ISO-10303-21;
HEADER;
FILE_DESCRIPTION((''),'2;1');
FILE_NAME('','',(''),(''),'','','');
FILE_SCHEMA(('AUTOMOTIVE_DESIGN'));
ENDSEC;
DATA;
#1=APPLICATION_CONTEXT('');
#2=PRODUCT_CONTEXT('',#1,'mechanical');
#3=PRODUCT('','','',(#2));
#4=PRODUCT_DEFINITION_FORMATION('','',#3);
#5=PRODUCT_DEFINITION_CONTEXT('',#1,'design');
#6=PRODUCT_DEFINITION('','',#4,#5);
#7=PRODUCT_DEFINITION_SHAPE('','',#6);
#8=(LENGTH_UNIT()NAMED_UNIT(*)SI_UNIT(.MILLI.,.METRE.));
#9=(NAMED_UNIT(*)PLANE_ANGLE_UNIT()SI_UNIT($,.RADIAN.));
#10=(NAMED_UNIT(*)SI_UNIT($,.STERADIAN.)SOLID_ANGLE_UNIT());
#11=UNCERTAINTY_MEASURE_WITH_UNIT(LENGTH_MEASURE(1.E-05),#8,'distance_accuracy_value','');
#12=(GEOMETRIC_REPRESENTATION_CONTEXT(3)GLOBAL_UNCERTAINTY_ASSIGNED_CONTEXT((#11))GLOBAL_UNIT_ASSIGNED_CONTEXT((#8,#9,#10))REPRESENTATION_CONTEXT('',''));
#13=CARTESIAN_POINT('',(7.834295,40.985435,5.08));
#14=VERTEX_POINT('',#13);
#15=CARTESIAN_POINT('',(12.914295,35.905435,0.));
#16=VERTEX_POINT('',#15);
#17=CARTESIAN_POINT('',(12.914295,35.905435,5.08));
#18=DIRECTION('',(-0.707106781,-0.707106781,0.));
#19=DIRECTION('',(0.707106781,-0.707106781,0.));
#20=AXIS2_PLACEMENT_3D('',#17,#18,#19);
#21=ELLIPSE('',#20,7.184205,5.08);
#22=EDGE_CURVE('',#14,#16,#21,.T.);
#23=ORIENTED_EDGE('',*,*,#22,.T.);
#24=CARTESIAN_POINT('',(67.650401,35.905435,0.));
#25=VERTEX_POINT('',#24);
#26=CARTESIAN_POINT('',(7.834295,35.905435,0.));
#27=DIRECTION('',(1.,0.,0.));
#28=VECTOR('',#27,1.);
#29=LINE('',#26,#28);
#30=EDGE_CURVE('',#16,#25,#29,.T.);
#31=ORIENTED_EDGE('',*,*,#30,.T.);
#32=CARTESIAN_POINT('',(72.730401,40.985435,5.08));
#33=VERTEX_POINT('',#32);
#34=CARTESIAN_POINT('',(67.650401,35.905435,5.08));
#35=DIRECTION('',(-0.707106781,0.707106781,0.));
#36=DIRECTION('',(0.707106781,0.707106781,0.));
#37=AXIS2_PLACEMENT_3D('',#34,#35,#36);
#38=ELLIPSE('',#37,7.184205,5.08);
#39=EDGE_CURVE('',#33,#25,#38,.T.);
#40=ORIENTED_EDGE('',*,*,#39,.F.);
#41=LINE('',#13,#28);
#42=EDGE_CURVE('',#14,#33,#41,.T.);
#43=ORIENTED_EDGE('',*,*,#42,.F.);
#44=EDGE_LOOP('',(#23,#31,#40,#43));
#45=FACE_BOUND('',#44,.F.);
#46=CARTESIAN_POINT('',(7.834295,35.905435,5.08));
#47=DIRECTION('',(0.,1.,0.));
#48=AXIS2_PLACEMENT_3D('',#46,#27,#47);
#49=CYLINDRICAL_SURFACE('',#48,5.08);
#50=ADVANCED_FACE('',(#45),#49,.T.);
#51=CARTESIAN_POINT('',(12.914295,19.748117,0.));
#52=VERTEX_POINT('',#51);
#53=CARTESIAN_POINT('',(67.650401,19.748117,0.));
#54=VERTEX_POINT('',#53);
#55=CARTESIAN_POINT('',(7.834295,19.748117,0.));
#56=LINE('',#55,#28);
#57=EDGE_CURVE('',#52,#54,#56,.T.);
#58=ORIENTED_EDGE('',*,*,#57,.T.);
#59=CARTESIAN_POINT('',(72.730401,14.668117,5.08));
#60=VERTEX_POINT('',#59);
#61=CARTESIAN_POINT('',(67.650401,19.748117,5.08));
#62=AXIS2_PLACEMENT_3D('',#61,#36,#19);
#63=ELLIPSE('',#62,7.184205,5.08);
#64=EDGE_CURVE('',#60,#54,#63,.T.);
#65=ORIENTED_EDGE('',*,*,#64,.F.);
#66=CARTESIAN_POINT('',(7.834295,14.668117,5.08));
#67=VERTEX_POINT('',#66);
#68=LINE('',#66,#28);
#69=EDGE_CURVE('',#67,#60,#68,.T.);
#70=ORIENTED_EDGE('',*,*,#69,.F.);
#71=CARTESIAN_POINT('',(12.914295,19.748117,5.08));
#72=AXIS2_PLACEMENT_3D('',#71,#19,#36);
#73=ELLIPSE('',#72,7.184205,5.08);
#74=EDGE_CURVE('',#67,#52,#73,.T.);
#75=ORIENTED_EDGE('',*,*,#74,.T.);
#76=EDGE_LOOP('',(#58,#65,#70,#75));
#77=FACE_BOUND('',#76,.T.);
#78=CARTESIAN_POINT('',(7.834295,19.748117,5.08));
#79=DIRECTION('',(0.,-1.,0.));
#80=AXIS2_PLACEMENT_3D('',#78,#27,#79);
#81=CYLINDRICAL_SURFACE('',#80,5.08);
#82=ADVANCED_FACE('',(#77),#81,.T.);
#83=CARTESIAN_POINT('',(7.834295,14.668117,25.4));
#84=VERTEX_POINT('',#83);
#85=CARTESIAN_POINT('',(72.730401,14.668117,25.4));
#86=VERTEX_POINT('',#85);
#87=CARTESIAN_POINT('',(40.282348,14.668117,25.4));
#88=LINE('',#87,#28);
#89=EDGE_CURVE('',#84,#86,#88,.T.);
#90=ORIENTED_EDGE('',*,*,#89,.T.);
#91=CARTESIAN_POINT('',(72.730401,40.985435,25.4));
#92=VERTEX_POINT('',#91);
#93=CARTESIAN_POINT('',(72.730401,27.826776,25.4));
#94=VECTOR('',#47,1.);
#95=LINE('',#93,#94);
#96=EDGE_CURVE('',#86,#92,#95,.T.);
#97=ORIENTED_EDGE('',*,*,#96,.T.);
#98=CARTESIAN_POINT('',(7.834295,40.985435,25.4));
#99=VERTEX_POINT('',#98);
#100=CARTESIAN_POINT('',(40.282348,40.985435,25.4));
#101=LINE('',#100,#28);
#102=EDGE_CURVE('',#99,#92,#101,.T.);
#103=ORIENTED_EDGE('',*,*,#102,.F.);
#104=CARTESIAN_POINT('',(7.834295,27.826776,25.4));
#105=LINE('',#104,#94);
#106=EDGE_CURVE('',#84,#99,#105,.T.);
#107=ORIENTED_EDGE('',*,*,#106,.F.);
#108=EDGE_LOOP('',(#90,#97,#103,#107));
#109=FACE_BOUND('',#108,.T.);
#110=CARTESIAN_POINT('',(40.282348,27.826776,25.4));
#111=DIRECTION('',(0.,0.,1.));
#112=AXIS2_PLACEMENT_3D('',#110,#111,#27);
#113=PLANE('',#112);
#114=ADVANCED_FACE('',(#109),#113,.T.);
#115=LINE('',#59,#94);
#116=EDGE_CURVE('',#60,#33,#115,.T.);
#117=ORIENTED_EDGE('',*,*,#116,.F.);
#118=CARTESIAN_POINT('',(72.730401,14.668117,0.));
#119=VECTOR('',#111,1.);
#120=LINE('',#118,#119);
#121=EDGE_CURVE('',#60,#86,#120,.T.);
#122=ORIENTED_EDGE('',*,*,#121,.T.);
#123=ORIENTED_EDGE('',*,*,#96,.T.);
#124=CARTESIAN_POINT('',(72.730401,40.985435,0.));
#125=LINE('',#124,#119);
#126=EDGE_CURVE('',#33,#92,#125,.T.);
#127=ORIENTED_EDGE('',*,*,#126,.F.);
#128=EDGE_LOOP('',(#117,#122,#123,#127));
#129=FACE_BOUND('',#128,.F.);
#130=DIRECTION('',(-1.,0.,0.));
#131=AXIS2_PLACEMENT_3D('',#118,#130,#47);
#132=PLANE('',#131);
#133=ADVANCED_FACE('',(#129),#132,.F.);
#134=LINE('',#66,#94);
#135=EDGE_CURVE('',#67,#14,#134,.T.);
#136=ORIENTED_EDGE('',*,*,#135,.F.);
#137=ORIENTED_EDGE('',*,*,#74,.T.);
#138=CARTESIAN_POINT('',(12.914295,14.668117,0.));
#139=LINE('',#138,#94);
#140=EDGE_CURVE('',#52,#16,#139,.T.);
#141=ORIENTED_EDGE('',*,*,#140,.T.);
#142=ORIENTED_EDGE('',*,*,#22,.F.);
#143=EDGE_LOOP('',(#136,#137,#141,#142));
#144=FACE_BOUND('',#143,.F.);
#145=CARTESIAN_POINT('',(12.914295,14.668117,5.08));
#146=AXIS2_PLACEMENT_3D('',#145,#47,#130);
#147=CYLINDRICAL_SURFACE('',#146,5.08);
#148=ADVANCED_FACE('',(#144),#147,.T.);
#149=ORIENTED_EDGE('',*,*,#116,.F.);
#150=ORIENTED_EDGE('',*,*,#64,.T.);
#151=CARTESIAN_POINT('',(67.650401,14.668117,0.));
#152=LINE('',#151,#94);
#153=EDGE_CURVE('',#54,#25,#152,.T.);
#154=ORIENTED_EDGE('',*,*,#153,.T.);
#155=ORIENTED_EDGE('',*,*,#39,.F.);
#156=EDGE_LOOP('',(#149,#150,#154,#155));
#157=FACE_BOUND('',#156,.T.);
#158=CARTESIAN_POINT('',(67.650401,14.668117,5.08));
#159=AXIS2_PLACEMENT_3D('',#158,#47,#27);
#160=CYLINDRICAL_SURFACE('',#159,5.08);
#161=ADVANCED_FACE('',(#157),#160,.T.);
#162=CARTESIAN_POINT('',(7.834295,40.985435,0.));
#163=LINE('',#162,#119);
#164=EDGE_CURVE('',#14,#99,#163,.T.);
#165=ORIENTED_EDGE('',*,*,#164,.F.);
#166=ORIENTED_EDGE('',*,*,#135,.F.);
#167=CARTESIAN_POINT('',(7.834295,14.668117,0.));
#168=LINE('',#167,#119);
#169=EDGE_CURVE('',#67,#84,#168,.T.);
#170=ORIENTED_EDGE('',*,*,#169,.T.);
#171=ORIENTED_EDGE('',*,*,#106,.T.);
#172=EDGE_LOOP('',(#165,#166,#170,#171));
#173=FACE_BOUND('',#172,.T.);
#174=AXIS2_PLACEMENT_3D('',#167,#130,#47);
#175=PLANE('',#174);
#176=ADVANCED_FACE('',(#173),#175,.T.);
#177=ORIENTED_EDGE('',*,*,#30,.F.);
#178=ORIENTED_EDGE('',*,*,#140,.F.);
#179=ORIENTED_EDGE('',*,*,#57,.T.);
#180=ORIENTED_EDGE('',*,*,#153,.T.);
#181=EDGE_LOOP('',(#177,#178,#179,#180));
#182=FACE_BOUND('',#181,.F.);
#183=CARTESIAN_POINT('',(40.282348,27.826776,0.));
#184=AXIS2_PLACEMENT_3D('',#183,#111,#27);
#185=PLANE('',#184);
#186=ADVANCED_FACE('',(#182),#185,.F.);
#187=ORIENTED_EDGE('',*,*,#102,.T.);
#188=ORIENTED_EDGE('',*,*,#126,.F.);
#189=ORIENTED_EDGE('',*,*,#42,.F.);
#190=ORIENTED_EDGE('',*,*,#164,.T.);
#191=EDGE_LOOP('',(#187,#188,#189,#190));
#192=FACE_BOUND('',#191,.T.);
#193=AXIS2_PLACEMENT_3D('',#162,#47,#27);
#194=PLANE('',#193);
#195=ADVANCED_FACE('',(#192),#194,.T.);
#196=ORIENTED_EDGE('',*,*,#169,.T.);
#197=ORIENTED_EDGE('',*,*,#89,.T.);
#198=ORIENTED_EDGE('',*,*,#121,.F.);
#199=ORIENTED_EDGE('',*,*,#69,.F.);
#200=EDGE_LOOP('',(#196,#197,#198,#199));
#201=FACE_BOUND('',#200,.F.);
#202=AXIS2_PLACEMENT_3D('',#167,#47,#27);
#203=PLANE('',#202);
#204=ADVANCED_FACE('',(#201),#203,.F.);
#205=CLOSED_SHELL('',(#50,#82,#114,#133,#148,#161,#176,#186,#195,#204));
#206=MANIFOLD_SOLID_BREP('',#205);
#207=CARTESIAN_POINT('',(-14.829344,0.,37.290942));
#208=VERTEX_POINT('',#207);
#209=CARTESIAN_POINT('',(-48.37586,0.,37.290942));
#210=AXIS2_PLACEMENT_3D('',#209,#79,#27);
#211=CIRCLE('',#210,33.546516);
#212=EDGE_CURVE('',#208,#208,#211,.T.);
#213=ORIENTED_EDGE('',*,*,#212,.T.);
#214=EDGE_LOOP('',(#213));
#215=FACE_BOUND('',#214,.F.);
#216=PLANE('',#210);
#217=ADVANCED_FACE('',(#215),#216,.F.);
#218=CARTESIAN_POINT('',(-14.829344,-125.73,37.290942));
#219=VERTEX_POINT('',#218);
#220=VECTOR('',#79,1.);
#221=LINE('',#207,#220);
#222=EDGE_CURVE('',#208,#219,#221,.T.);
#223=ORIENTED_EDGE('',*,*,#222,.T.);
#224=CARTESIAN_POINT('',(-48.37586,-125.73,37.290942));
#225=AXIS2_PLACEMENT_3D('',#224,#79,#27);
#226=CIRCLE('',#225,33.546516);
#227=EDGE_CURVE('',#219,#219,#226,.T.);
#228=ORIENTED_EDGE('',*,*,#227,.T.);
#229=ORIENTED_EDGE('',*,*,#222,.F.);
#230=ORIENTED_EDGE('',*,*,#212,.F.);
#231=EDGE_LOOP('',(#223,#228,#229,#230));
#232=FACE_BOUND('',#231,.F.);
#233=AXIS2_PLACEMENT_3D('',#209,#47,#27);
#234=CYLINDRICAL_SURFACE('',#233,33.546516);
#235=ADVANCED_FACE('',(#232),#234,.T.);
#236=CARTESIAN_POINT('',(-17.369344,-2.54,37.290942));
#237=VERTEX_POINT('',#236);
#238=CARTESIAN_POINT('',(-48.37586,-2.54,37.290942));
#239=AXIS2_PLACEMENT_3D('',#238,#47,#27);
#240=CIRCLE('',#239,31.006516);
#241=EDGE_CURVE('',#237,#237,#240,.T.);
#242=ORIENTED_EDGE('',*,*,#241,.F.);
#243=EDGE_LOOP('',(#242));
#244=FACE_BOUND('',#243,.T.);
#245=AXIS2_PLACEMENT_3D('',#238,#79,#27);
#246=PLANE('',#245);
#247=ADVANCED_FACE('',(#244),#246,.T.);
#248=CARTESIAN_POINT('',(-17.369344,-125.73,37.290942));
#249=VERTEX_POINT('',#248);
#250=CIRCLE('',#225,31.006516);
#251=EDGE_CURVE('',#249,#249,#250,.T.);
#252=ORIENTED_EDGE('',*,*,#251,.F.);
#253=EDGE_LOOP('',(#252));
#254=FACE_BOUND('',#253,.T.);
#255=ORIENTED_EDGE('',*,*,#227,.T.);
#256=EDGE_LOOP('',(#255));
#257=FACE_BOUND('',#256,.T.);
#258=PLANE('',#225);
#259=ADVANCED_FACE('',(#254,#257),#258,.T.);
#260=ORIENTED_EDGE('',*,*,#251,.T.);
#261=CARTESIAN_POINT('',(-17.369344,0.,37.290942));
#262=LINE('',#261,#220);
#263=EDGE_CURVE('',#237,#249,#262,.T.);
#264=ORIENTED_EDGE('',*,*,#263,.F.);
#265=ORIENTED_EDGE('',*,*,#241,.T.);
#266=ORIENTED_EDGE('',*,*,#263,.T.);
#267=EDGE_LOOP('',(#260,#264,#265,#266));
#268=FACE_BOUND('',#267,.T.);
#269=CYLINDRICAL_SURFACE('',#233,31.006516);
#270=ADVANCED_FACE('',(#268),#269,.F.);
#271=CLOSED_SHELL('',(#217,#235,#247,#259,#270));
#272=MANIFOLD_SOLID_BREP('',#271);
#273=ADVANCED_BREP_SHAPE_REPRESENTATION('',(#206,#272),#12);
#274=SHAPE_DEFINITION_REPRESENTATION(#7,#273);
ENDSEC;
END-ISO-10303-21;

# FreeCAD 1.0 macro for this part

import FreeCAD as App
import Part
import Sketcher
from FreeCAD import Vector
Q = App.Units.Quantity


def edges_at(feature, points):
    """Names of the edges that pass closest to the given points."""
    edges = feature.Shape.Edges
    near = lambda p: min(range(len(edges)), key=lambda i: edges[i].distToShape(Part.Vertex(*p))[0])
    return sorted({f"Edge{near(p) + 1}" for p in points})


def faces_at(feature, points):
    """Names of the faces that lie closest to the given points."""
    faces = feature.Shape.Faces
    near = lambda p: min(range(len(faces)), key=lambda i: faces[i].distToShape(Part.Vertex(*p))[0])
    return sorted({f"Face{near(p) + 1}" for p in points})


def add_polygon(sketch, points):
    """Adds a closed chain of lines whose ends are joined by coincident constraints."""
    first, n = sketch.GeometryCount, len(points)
    for a, b in zip(points, points[1:] + points[:1]):
        sketch.addGeometry(Part.LineSegment(App.Vector(*a, 0), App.Vector(*b, 0)), False)
    for i in range(n):
        sketch.addConstraint(Sketcher.Constraint("Coincident", first + i, 2, first + (i + 1) % n, 1))

doc = App.newDocument("Part")
body = doc.addObject("PartDesign::Body", "Body")

# Sketch on XZ plane
sketch1 = doc.addObject("Sketcher::SketchObject", "Sketch")
body.addObject(sketch1)
sketch1.AttachmentSupport = (doc.XZ_Plane, [""])
sketch1.MapMode = "FlatFace"
sketch1.addGeometry(Part.Circle(Vector(-48, 37, 0), Vector(0, 0, 1), 34), False)
sketch1.addConstraint(Sketcher.Constraint("Diameter", 0, Q("67.093032 mm")))
sketch1.addConstraint(Sketcher.Constraint("DistanceX", 0, 3, -1, 1, Q("48.37586 mm")))
sketch1.addConstraint(Sketcher.Constraint("DistanceY", -1, 1, 0, 3, Q("37.290942 mm")))
pad1 = doc.addObject("PartDesign::Pad", "Pad")
body.addObject(pad1)
pad1.Profile = sketch1
pad1.Length = Q("4.95 in")
doc.recompute()

thickness = doc.addObject("PartDesign::Thickness", "Thickness")
body.addObject(thickness)
thickness.Base = (pad1, faces_at(pad1, [(-48.376, -125.73, 37.291)]))
thickness.Value = Q("0.1 in")
thickness.Reversed = True
thickness.Join = "Arc"
body2 = doc.addObject("PartDesign::Body", "Body001")

# Sketch on XY plane
sketch2 = doc.addObject("Sketcher::SketchObject", "Sketch001")
body2.addObject(sketch2)
sketch2.AttachmentSupport = (doc.getObject("XY_Plane001"), [""])
sketch2.MapMode = "FlatFace"
add_polygon(sketch2, [(8, 41), (8, 15), (73, 15), (73, 41)])  # lines 0-3
sketch2.addConstraint(Sketcher.Constraint("Vertical", 0))
sketch2.addConstraint(Sketcher.Constraint("Horizontal", 1))
sketch2.addConstraint(Sketcher.Constraint("Vertical", 2))
sketch2.addConstraint(Sketcher.Constraint("Horizontal", 3))
sketch2.addConstraint(Sketcher.Constraint("DistanceY", -1, 1, 2, 2, Q("1.6135998 in")))
sketch2.addConstraint(Sketcher.Constraint("DistanceY", 0, 2, 0, 1, Q("26.317318 mm")))
sketch2.addConstraint(Sketcher.Constraint("DistanceX", -1, 1, 1, 2, Q("72.730401 mm")))
sketch2.addConstraint(Sketcher.Constraint("DistanceX", 1, 1, 1, 2, Q("64.896105 mm")))
pad2 = doc.addObject("PartDesign::Pad", "Pad001")
body2.addObject(pad2)
pad2.Profile = sketch2
pad2.Length = Q("1 in")
doc.recompute()

fillet = doc.addObject("PartDesign::Fillet", "Fillet")
body2.addObject(fillet)
fillet.Base = (pad2, edges_at(pad2, [
    (40.282, 40.985, 0),
    (7.834, 27.827, 0),
    (40.282, 14.668, 0),
    (72.73, 27.827, 0),
]))
fillet.Radius = Q("0.2 in")

doc.recompute()
